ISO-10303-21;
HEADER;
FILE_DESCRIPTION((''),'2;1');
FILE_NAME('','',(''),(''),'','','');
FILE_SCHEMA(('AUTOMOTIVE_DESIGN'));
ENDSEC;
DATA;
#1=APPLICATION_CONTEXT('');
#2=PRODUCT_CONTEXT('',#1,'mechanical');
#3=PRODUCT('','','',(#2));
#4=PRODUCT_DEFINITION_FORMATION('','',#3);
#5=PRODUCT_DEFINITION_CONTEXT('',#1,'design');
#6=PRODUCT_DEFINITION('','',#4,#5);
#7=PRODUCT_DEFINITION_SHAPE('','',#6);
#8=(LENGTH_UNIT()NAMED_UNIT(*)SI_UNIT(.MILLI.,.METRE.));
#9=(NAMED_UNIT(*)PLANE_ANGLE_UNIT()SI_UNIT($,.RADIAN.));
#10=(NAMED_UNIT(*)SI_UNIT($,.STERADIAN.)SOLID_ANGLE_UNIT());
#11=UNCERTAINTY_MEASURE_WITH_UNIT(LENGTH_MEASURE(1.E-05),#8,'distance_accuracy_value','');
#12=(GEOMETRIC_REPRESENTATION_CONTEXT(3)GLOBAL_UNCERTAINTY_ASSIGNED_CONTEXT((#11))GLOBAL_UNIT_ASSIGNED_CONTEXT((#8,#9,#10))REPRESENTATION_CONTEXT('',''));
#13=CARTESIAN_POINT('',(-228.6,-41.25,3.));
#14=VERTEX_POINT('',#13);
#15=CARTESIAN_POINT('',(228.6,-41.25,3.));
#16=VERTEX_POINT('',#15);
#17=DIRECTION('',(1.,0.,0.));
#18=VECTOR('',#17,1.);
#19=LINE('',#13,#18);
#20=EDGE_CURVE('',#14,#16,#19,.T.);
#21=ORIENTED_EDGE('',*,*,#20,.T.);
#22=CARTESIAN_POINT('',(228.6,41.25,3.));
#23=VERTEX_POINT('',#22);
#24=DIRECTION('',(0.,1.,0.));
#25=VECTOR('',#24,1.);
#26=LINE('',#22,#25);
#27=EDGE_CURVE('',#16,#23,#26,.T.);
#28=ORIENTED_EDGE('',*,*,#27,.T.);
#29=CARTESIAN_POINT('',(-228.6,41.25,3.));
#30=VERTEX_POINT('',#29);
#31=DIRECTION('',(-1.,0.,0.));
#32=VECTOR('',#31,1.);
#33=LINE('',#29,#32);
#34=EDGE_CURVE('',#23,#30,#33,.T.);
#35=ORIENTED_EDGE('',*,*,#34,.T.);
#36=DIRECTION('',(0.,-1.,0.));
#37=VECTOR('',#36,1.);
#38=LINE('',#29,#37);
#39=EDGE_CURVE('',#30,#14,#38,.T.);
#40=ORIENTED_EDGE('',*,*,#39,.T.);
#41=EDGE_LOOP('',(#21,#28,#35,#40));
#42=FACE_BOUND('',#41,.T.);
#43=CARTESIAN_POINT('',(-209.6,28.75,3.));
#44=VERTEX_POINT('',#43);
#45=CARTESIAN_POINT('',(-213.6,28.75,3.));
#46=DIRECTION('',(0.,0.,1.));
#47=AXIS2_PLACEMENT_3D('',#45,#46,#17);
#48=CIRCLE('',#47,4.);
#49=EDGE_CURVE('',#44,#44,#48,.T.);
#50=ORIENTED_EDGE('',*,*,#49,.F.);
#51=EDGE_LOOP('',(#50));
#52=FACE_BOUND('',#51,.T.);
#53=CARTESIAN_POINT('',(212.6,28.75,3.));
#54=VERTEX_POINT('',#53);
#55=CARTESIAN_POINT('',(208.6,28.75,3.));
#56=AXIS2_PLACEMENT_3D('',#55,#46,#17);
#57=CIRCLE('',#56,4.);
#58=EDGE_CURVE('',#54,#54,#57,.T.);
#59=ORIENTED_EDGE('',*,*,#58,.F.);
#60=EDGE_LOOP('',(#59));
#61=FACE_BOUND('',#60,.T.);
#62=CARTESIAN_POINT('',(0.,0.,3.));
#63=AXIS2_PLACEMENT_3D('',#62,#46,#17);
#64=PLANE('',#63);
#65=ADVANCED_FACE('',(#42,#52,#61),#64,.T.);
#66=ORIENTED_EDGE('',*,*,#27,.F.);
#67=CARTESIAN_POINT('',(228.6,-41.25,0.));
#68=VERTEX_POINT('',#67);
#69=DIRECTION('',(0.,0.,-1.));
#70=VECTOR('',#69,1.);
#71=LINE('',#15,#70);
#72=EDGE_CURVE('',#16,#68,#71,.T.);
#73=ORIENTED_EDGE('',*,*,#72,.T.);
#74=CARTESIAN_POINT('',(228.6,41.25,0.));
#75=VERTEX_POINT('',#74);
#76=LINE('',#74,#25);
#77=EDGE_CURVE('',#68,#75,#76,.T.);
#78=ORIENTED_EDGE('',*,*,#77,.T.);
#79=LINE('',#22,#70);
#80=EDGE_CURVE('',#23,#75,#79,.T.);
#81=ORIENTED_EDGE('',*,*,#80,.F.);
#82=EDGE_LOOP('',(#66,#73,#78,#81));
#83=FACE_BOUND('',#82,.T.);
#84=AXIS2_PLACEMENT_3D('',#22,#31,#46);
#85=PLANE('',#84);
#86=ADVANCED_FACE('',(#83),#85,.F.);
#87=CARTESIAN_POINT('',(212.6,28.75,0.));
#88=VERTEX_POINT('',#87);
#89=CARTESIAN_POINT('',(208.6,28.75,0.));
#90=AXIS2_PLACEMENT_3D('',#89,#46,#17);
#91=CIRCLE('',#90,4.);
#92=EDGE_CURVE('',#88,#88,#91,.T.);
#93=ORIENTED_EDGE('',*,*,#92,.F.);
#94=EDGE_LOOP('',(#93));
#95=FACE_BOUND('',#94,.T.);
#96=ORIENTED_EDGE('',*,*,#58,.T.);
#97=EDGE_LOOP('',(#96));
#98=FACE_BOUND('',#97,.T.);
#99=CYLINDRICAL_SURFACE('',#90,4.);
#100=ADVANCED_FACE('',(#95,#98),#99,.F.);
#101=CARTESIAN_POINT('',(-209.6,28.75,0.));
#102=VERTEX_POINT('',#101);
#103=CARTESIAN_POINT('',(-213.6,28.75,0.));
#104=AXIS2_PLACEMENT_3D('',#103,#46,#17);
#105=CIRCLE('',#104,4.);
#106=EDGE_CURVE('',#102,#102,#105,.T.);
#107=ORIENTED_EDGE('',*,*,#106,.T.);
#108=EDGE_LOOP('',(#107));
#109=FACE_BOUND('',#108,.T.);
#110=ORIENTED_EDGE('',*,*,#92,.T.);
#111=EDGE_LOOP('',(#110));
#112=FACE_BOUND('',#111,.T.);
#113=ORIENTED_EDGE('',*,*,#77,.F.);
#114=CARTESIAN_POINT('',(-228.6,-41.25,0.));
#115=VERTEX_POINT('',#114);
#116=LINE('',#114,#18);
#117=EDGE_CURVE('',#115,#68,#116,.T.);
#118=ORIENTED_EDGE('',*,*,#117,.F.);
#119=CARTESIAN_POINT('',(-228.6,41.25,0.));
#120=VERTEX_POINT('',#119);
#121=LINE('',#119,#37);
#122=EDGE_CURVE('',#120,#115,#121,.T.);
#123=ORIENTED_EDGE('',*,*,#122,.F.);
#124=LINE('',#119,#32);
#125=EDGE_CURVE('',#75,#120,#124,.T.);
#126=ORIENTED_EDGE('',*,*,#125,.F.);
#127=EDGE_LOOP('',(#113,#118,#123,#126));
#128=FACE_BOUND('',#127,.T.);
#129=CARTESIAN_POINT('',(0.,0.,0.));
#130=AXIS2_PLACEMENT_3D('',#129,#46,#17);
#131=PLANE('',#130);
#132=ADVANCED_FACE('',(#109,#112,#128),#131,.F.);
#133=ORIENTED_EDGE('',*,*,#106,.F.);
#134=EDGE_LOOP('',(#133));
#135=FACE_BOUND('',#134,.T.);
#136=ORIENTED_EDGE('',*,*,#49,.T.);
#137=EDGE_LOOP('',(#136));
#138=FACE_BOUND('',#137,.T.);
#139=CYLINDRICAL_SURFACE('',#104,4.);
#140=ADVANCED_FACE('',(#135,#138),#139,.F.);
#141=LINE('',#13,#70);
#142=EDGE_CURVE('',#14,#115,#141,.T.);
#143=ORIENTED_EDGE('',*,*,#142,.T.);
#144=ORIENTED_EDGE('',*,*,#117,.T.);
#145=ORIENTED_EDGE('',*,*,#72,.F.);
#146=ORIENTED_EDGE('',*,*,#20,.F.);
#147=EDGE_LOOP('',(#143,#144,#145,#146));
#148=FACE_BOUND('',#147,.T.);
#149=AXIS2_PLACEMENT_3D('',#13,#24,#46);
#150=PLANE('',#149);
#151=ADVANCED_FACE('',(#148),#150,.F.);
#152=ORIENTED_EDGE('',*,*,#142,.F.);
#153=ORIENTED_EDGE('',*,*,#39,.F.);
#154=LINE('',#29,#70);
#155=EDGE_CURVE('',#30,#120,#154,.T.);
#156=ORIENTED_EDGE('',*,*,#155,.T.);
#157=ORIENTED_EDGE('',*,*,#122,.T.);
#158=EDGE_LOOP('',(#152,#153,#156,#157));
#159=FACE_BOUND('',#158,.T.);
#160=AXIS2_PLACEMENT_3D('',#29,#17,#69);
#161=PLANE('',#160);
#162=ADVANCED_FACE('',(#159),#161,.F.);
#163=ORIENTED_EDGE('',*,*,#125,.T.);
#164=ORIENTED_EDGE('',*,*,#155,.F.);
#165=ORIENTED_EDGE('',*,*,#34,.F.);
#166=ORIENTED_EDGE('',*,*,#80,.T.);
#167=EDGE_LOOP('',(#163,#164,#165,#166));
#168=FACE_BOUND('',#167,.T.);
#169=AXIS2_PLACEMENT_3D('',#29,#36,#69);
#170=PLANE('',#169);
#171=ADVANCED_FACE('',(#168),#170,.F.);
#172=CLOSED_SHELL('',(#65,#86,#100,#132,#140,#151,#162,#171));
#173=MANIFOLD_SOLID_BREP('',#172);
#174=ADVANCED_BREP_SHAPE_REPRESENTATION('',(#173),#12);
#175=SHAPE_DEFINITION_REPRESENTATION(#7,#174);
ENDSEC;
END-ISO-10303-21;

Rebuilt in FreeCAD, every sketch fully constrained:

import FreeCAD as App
import Part
import Sketcher
Q = App.Units.Quantity

doc = App.newDocument("Part")
body = doc.addObject("PartDesign::Body", "Body")

sketch1 = body.newObject("Sketcher::SketchObject", "Sketch")
sketch1.AttachmentSupport = (doc.getObject("XY_Plane"), [""])
sketch1.MapMode = "FlatFace"
sketch1.addGeometry(Part.LineSegment(App.Vector(-229, 41, 0), App.Vector(-229, -41, 0)), False)
sketch1.addGeometry(Part.LineSegment(App.Vector(-229, -41, 0), App.Vector(229, -41, 0)), False)
sketch1.addGeometry(Part.LineSegment(App.Vector(229, -41, 0), App.Vector(229, 41, 0)), False)
sketch1.addGeometry(Part.LineSegment(App.Vector(229, 41, 0), App.Vector(-229, 41, 0)), False)
sketch1.addConstraint(Sketcher.Constraint("Coincident", 0, 2, 1, 1))
sketch1.addConstraint(Sketcher.Constraint("Coincident", 1, 2, 2, 1))
sketch1.addConstraint(Sketcher.Constraint("Coincident", 2, 2, 3, 1))
sketch1.addConstraint(Sketcher.Constraint("Coincident", 3, 2, 0, 1))
sketch1.addConstraint(Sketcher.Constraint("Vertical", 0))
sketch1.addConstraint(Sketcher.Constraint("Horizontal", 1))
sketch1.addConstraint(Sketcher.Constraint("Vertical", 2))
sketch1.addConstraint(Sketcher.Constraint("Horizontal", 3))
sketch1.addConstraint(Sketcher.Constraint("Symmetric", 0, 2, 2, 2, -1, 1))
sketch1.addConstraint(Sketcher.Constraint("DistanceX", 1, 1, 1, 2, Q("457.2 mm")))
sketch1.addConstraint(Sketcher.Constraint("DistanceY", 0, 2, 0, 1, Q("82.5 mm")))
pad1 = body.newObject("PartDesign::Pad", "Pad")
pad1.Profile = sketch1
pad1.Length = 3

sketch2 = body.newObject("Sketcher::SketchObject", "Sketch001")
sketch2.AttachmentSupport = (doc.getObject("XY_Plane"), [""])
sketch2.MapMode = "FlatFace"
sketch2.AttachmentOffset = App.Placement(App.Vector(0, 0, 3), App.Rotation())
sketch2.addGeometry(Part.Circle(App.Vector(-213.6, 28.8, 0), App.Vector(0, 0, 1), 4), False)
sketch2.addGeometry(Part.Circle(App.Vector(208.6, 28.8, 0), App.Vector(0, 0, 1), 4), False)
sketch2.addConstraint(Sketcher.Constraint("Equal", 0, 1))
sketch2.addConstraint(Sketcher.Constraint("Horizontal", 0, 3, 1, 3))
sketch2.addConstraint(Sketcher.Constraint("Diameter", 0, Q("8 mm")))
sketch2.addConstraint(Sketcher.Constraint("DistanceX", 0, 3, -1, 1, Q("213.6 mm")))
sketch2.addConstraint(Sketcher.Constraint("DistanceX", -1, 1, 1, 3, Q("208.6 mm")))
sketch2.addConstraint(Sketcher.Constraint("DistanceY", -1, 1, 0, 3, Q("28.75 mm")))
pocket1 = body.newObject("PartDesign::Pocket", "Pocket")
pocket1.Profile = sketch2
pocket1.Type = "ThroughAll"

doc.recompute()
